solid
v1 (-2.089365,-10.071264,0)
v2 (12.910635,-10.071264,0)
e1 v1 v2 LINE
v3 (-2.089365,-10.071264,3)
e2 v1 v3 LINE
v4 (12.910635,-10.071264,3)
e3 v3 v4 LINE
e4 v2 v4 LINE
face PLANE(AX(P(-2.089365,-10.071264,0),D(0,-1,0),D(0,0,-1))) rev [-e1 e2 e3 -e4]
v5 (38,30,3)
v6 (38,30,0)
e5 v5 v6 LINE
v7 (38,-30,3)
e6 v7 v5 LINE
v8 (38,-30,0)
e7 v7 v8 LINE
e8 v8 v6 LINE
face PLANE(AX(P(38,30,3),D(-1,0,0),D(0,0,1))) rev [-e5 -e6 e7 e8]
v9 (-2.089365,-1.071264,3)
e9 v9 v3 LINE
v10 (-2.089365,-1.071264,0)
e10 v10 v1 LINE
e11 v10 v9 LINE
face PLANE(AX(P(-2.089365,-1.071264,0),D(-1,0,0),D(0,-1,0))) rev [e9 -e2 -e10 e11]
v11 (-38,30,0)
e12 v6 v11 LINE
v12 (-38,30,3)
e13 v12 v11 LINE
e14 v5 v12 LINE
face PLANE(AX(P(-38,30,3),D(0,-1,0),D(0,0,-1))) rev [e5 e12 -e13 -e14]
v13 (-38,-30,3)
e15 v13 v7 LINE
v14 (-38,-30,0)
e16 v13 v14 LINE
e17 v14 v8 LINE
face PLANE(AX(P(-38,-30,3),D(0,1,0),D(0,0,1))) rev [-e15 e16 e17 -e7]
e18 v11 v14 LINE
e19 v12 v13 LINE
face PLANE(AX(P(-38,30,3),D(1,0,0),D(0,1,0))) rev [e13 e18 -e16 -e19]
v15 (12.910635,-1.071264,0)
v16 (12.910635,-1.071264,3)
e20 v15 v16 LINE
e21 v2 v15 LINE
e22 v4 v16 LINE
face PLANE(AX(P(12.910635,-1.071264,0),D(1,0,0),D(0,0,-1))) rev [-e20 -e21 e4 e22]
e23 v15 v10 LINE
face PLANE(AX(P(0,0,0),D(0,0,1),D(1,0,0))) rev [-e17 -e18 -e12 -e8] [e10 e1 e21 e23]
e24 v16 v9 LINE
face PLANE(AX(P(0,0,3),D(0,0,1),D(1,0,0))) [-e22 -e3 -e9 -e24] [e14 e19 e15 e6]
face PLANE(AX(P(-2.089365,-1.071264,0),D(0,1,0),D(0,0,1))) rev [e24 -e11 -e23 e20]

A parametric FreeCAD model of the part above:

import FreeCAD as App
import Part
import Sketcher
from FreeCAD import Vector
Q = App.Units.Quantity

doc = App.newDocument("Part")
body = doc.addObject("PartDesign::Body", "Body")

sketch1 = body.newObject("Sketcher::SketchObject", "Sketch")
sketch1.AttachmentSupport = (doc.getObject("XY_Plane"), [""])
sketch1.MapMode = "FlatFace"
sketch1.addGeometry([
    Part.LineSegment(Vector(-38, 30, 0), Vector(-38, -30, 0)),
    Part.LineSegment(Vector(-38, -30, 0), Vector(38, -30, 0)),
    Part.LineSegment(Vector(38, -30, 0), Vector(38, 30, 0)),
    Part.LineSegment(Vector(38, 30, 0), Vector(-38, 30, 0)),
], False)
sketch1.addConstraint([
    Sketcher.Constraint("Coincident", 0, 2, 1, 1),
    Sketcher.Constraint("Coincident", 1, 2, 2, 1),
    Sketcher.Constraint("Coincident", 2, 2, 3, 1),
    Sketcher.Constraint("Coincident", 3, 2, 0, 1),
    Sketcher.Constraint("Vertical", 0),
    Sketcher.Constraint("Horizontal", 1),
    Sketcher.Constraint("Vertical", 2),
    Sketcher.Constraint("Horizontal", 3),
    Sketcher.Constraint("Symmetric", 0, 2, 2, 2, -1, 1),
    Sketcher.Constraint("DistanceX", 1, 1, 1, 2, Q("76 mm")),
    Sketcher.Constraint("DistanceY", 0, 2, 0, 1, Q("60 mm")),
])
pad1 = body.newObject("PartDesign::Pad", "Pad")
pad1.Profile = sketch1
pad1.Length = 3

sketch2 = body.newObject("Sketcher::SketchObject", "Sketch001")
sketch2.AttachmentSupport = (doc.getObject("XY_Plane"), [""])
sketch2.MapMode = "FlatFace"
sketch2.AttachmentOffset = App.Placement(Vector(0, 0, 3), App.Rotation())
sketch2.addGeometry([
    Part.LineSegment(Vector(-2, -1, 0), Vector(-2, -10, 0)),
    Part.LineSegment(Vector(-2, -10, 0), Vector(13, -10, 0)),
    Part.LineSegment(Vector(13, -10, 0), Vector(13, -1, 0)),
    Part.LineSegment(Vector(13, -1, 0), Vector(-2, -1, 0)),
], False)
sketch2.addConstraint([
    Sketcher.Constraint("Coincident", 0, 2, 1, 1),
    Sketcher.Constraint("Coincident", 1, 2, 2, 1),
    Sketcher.Constraint("Coincident", 2, 2, 3, 1),
    Sketcher.Constraint("Coincident", 3, 2, 0, 1),
    Sketcher.Constraint("Vertical", 0),
    Sketcher.Constraint("Horizontal", 1),
    Sketcher.Constraint("Vertical", 2),
    Sketcher.Constraint("Horizontal", 3),
    Sketcher.Constraint("DistanceX", 1, 1, 1, 2, Q("15 mm")),
    Sketcher.Constraint("DistanceY", 0, 2, 0, 1, Q("9 mm")),
    Sketcher.Constraint("DistanceX", 0, 2, -1, 1, Q("2.089365 mm")),
    Sketcher.Constraint("DistanceY", 0, 2, -1, 1, Q("10.071264 mm")),
])
pocket1 = body.newObject("PartDesign::Pocket", "Pocket")
pocket1.Profile = sketch2
pocket1.Length = 3

doc.recompute()
